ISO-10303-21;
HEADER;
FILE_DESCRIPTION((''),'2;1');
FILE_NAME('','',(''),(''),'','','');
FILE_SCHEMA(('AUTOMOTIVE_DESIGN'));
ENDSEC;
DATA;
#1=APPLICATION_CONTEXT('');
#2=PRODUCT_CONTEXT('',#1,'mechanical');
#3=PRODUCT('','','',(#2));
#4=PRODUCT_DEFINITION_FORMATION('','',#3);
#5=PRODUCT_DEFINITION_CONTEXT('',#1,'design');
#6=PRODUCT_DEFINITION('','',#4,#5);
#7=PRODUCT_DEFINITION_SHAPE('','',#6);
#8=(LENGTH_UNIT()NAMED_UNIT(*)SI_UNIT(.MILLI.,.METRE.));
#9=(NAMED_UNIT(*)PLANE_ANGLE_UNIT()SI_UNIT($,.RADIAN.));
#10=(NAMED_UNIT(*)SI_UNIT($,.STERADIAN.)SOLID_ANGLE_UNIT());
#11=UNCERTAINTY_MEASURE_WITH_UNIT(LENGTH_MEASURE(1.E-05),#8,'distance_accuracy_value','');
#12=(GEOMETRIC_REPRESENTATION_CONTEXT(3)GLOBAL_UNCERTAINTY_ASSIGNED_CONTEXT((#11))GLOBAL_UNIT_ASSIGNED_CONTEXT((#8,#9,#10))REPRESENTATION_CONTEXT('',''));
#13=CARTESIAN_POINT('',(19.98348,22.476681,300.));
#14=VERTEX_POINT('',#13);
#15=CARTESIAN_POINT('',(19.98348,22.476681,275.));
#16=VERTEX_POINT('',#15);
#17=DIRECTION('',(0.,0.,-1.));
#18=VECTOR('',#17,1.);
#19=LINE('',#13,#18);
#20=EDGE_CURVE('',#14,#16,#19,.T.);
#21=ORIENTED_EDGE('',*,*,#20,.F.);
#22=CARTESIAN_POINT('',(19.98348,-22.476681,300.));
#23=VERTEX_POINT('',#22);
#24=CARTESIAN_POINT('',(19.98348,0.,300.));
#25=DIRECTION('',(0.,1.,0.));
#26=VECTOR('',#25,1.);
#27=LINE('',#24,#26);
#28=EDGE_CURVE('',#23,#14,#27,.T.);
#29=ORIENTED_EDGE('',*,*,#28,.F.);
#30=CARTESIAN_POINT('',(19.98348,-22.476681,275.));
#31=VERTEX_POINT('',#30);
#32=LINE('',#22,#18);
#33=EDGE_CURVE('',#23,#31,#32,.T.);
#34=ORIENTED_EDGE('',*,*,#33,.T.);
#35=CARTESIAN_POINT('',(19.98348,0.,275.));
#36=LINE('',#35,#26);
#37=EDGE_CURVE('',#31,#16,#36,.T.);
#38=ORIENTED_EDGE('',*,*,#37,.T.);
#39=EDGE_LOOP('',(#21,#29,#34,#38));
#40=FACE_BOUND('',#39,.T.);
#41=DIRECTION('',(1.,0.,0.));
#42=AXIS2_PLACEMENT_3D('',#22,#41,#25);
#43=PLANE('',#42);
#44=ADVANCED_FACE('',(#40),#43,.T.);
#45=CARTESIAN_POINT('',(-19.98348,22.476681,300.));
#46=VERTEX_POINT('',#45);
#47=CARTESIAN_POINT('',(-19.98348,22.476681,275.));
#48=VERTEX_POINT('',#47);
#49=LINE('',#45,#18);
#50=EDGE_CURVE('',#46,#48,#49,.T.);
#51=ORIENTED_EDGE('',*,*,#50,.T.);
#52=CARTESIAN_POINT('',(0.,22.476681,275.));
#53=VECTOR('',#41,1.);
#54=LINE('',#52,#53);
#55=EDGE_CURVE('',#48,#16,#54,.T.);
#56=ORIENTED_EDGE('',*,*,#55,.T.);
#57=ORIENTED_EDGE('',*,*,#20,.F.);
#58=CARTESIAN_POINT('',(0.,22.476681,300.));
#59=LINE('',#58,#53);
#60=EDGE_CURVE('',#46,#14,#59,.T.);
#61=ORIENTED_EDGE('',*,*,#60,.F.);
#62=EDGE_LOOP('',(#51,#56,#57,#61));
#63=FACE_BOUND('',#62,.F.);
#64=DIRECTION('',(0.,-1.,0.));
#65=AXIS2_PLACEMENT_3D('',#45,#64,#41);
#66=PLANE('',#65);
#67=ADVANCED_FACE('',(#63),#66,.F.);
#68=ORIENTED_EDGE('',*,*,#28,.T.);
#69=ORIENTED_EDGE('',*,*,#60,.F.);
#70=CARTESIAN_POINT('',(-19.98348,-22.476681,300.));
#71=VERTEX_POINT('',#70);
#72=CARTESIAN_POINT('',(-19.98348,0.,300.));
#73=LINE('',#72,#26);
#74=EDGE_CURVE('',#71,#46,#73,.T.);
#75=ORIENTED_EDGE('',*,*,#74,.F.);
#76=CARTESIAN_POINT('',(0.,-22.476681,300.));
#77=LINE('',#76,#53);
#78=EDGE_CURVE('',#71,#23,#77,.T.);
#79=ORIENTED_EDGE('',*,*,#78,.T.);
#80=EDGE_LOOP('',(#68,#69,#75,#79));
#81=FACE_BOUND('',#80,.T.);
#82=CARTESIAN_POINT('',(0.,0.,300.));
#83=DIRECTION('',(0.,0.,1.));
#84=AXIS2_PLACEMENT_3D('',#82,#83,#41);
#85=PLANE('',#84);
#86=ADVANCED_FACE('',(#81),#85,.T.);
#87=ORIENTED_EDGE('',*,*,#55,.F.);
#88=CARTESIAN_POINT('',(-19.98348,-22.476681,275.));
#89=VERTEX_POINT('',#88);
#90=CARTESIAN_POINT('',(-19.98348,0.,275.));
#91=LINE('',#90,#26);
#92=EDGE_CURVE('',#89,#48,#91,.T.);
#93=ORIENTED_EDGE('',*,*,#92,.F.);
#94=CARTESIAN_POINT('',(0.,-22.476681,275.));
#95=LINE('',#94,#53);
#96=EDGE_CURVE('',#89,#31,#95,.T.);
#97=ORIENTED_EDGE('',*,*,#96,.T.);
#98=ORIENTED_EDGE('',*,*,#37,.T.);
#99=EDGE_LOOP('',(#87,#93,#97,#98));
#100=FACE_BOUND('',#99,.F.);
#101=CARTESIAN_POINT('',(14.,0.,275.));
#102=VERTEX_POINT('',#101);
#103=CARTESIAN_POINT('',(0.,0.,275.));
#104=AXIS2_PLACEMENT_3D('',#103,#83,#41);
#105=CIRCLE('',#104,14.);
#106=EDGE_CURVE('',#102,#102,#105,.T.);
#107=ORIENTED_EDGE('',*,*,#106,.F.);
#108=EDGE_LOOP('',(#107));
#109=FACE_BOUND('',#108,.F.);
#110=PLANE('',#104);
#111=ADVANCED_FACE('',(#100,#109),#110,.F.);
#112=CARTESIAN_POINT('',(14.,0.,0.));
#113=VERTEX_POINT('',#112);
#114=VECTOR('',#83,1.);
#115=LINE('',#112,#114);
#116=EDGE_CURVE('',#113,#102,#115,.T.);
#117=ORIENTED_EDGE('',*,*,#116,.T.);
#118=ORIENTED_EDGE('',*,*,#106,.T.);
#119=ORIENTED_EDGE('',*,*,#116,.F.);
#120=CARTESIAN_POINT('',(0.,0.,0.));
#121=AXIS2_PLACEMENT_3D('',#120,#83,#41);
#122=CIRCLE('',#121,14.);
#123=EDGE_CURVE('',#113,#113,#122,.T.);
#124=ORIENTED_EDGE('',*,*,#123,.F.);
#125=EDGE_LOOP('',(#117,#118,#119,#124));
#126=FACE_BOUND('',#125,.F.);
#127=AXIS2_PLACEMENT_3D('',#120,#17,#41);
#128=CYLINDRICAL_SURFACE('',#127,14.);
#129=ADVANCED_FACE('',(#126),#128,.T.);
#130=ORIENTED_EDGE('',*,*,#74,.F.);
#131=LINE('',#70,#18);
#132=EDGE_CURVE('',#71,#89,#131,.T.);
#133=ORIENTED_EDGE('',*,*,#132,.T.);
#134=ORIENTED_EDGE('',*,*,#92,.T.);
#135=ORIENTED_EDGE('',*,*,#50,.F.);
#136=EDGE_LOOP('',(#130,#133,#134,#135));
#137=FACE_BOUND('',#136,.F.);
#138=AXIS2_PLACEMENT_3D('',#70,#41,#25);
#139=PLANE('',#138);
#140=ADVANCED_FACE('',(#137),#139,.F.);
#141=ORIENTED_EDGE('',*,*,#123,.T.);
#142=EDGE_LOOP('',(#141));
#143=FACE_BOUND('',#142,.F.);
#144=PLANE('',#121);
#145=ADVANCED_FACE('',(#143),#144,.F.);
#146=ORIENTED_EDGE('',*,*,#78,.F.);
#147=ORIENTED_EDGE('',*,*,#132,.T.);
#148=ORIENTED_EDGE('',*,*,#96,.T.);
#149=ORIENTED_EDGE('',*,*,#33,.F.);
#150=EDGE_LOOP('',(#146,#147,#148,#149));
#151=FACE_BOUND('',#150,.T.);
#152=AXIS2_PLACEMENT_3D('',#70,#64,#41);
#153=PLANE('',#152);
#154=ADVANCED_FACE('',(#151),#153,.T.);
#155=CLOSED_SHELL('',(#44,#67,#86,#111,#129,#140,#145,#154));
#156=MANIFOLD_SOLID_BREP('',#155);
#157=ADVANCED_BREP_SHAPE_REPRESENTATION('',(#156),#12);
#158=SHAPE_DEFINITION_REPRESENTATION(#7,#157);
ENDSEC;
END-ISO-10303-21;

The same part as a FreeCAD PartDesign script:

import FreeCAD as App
import Part
import Sketcher
from FreeCAD import Vector
Q = App.Units.Quantity

doc = App.newDocument("Part")
body = doc.addObject("PartDesign::Body", "Body")

# Sketch on XY plane
sketch1 = body.newObject("Sketcher::SketchObject", "Sketch")
sketch1.AttachmentSupport = (doc.getObject("XY_Plane"), [""])
sketch1.MapMode = "FlatFace"
sketch1.addGeometry(Part.Circle(Vector(0, 0, 0), Vector(0, 0, 1), 14), False)
sketch1.addConstraint(Sketcher.Constraint("Coincident", 0, 3, -1, 1))
sketch1.addConstraint(Sketcher.Constraint("Diameter", 0, Q("28 mm")))
pad1 = body.newObject("PartDesign::Pad", "Pad")
pad1.Profile = sketch1
pad1.Length = 300

# Sketch on XY plane
sketch2 = body.newObject("Sketcher::SketchObject", "Sketch001")
sketch2.AttachmentSupport = (doc.getObject("XY_Plane"), [""])
sketch2.MapMode = "FlatFace"
sketch2.AttachmentOffset = App.Placement(Vector(0, 0, 300), App.Rotation())
sketch2.addGeometry(Part.LineSegment(Vector(-20, 22, 0), Vector(-20, -22, 0)), False)
sketch2.addGeometry(Part.LineSegment(Vector(-20, -22, 0), Vector(20, -22, 0)), False)
sketch2.addGeometry(Part.LineSegment(Vector(20, -22, 0), Vector(20, 22, 0)), False)
sketch2.addGeometry(Part.LineSegment(Vector(20, 22, 0), Vector(-20, 22, 0)), False)
sketch2.addGeometry(Part.Circle(Vector(0, 0, 0), Vector(0, 0, 1), 14), False)
sketch2.addConstraint(Sketcher.Constraint("Coincident", 0, 2, 1, 1))
sketch2.addConstraint(Sketcher.Constraint("Coincident", 1, 2, 2, 1))
sketch2.addConstraint(Sketcher.Constraint("Coincident", 2, 2, 3, 1))
sketch2.addConstraint(Sketcher.Constraint("Coincident", 3, 2, 0, 1))
sketch2.addConstraint(Sketcher.Constraint("Vertical", 0))
sketch2.addConstraint(Sketcher.Constraint("Horizontal", 1))
sketch2.addConstraint(Sketcher.Constraint("Vertical", 2))
sketch2.addConstraint(Sketcher.Constraint("Horizontal", 3))
sketch2.addConstraint(Sketcher.Constraint("Coincident", 4, 3, -1, 1))
sketch2.addConstraint(Sketcher.Constraint("Symmetric", 0, 2, 2, 2, -1, 1))
sketch2.addConstraint(Sketcher.Constraint("Diameter", 4, Q("28 mm")))
sketch2.addConstraint(Sketcher.Constraint("DistanceX", 1, 1, 1, 2, Q("39.96696 mm")))
sketch2.addConstraint(Sketcher.Constraint("DistanceY", 0, 2, 0, 1, Q("44.953362 mm")))
pad2 = body.newObject("PartDesign::Pad", "Pad001")
pad2.Profile = sketch2
pad2.Length = 25
pad2.Reversed = True

doc.recompute()
